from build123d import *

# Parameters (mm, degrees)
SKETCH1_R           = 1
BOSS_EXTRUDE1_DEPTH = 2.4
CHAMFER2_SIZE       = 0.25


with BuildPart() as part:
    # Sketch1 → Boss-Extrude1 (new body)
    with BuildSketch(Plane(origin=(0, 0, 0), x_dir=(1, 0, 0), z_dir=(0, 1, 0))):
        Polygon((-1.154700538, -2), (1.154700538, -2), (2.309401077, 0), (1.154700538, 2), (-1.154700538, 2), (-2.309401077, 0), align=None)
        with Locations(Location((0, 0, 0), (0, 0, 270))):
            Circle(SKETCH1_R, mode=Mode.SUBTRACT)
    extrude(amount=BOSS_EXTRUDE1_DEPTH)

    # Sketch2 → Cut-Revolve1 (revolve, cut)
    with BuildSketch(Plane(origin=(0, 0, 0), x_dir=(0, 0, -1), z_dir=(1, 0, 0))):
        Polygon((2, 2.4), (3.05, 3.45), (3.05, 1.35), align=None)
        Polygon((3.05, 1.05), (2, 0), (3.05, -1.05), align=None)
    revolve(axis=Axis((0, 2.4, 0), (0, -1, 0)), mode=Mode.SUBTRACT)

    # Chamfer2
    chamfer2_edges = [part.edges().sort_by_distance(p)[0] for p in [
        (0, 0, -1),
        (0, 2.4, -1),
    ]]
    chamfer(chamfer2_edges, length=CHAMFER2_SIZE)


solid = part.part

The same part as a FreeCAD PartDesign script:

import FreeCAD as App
import Part
import Sketcher
from FreeCAD import Vector
Q = App.Units.Quantity


def edges_at(feature, points):
    """Names of the edges that pass closest to the given points."""
    edges = feature.Shape.Edges
    near = lambda p: min(range(len(edges)), key=lambda i: edges[i].distToShape(Part.Vertex(*p))[0])
    return sorted({f"Edge{near(p) + 1}" for p in points})

doc = App.newDocument("Part")
body = doc.addObject("PartDesign::Body", "Body")

# Sketch on XZ plane
sketch1 = body.newObject("Sketcher::SketchObject", "Sketch")
sketch1.AttachmentSupport = (doc.getObject("XZ_Plane"), [""])
sketch1.MapMode = "FlatFace"
sketch1.addGeometry([
    Part.LineSegment(Vector(-1.2, 2, 0), Vector(1.2, 2, 0)),  # 0
    Part.LineSegment(Vector(1.2, 2, 0), Vector(2.3, 0, 0)),  # 1
    Part.LineSegment(Vector(2.3, 0, 0), Vector(1.2, -2, 0)),  # 2
    Part.LineSegment(Vector(1.2, -2, 0), Vector(-1.2, -2, 0)),  # 3
    Part.LineSegment(Vector(-1.2, -2, 0), Vector(-2.3, 0, 0)),  # 4
    Part.LineSegment(Vector(-2.3, 0, 0), Vector(-1.2, 2, 0)),  # 5
    Part.Circle(Vector(0, 0, 0), Vector(0, 0, 1), 1),  # 6
], False)
sketch1.addConstraint([
    Sketcher.Constraint("Coincident", 0, 2, 1, 1),
    Sketcher.Constraint("Coincident", 1, 2, 2, 1),
    Sketcher.Constraint("Coincident", 2, 2, 3, 1),
    Sketcher.Constraint("Coincident", 3, 2, 4, 1),
    Sketcher.Constraint("Coincident", 4, 2, 5, 1),
    Sketcher.Constraint("Coincident", 5, 2, 0, 1),
    Sketcher.Constraint("Horizontal", 0),
    Sketcher.Constraint("Horizontal", 3),
    Sketcher.Constraint("Coincident", 6, 3, -1, 1),
    Sketcher.Constraint("Symmetric", 0, 2, 3, 2, -1, 1),
    Sketcher.Constraint("Symmetric", 1, 2, 4, 2, -1, 1),
    Sketcher.Constraint("PointOnObject", 1, 2, -1),
    Sketcher.Constraint("Parallel", 2, 5),
    Sketcher.Constraint("Vertical", 0, 2, 2, 2),
    Sketcher.Constraint("Diameter", 6, 2.0),
    Sketcher.Constraint("Angle", 1, Q("-60 deg")),
    Sketcher.Constraint("DistanceY", -1, 1, 0, 2, 2.0),
    Sketcher.Constraint("DistanceX", 0, 1, 0, 2, 2.309401),
])
pad1 = body.newObject("PartDesign::Pad", "Pad")
pad1.Profile = sketch1
pad1.Length = 2.4
pad1.Reversed = True

# Sketch on YZ plane
sketch2 = body.newObject("Sketcher::SketchObject", "Sketch001")
sketch2.AttachmentSupport = (doc.getObject("YZ_Plane"), [""])
sketch2.MapMode = "FlatFace"
sketch2.addGeometry([
    Part.LineSegment(Vector(3.5, -3, 0), Vector(2.4, -2, 0)),  # 0
    Part.LineSegment(Vector(2.4, -2, 0), Vector(1.4, -3, 0)),  # 1
    Part.LineSegment(Vector(1.4, -3, 0), Vector(3.5, -3, 0)),  # 2
    Part.LineSegment(Vector(1.1, -3, 0), Vector(0, -2, 0)),  # 3
    Part.LineSegment(Vector(0, -2, 0), Vector(-1.1, -3, 0)),  # 4
    Part.LineSegment(Vector(-1.1, -3, 0), Vector(1.1, -3, 0)),  # 5
], False)
sketch2.addConstraint([
    Sketcher.Constraint("Coincident", 0, 2, 1, 1),
    Sketcher.Constraint("Coincident", 1, 2, 2, 1),
    Sketcher.Constraint("Coincident", 2, 2, 0, 1),
    Sketcher.Constraint("Coincident", 3, 2, 4, 1),
    Sketcher.Constraint("Coincident", 4, 2, 5, 1),
    Sketcher.Constraint("Coincident", 5, 2, 3, 1),
    Sketcher.Constraint("Horizontal", 2),
    Sketcher.Constraint("Horizontal", 5),
    Sketcher.Constraint("PointOnObject", 3, 2, -2),
    Sketcher.Constraint("Perpendicular", 0, 1),
    Sketcher.Constraint("Perpendicular", 1, 3),
    Sketcher.Constraint("Perpendicular", 3, 4),
    Sketcher.Constraint("Horizontal", 0, 2, 3, 2),
    Sketcher.Constraint("Horizontal", 2, 2, 4, 2),
    Sketcher.Constraint("Equal", 0, 1),
    Sketcher.Constraint("DistanceX", 2, 1, 2, 2, 2.1),
    Sketcher.Constraint("DistanceY", 0, 2, -1, 1, 2.0),
    Sketcher.Constraint("DistanceX", -1, 1, 0, 2, 2.4),
])
groove = body.newObject("PartDesign::Groove", "Groove")
groove.Profile = sketch2
groove.ReferenceAxis = (sketch2, ["H_Axis"])
groove.Angle = 360
doc.recompute()

chamfer = body.newObject("PartDesign::Chamfer", "Chamfer")
chamfer.Base = (groove, edges_at(groove, [(0, 0, -1), (0, 2.4, -1)]))
chamfer.Size = 0.25

doc.recompute()
